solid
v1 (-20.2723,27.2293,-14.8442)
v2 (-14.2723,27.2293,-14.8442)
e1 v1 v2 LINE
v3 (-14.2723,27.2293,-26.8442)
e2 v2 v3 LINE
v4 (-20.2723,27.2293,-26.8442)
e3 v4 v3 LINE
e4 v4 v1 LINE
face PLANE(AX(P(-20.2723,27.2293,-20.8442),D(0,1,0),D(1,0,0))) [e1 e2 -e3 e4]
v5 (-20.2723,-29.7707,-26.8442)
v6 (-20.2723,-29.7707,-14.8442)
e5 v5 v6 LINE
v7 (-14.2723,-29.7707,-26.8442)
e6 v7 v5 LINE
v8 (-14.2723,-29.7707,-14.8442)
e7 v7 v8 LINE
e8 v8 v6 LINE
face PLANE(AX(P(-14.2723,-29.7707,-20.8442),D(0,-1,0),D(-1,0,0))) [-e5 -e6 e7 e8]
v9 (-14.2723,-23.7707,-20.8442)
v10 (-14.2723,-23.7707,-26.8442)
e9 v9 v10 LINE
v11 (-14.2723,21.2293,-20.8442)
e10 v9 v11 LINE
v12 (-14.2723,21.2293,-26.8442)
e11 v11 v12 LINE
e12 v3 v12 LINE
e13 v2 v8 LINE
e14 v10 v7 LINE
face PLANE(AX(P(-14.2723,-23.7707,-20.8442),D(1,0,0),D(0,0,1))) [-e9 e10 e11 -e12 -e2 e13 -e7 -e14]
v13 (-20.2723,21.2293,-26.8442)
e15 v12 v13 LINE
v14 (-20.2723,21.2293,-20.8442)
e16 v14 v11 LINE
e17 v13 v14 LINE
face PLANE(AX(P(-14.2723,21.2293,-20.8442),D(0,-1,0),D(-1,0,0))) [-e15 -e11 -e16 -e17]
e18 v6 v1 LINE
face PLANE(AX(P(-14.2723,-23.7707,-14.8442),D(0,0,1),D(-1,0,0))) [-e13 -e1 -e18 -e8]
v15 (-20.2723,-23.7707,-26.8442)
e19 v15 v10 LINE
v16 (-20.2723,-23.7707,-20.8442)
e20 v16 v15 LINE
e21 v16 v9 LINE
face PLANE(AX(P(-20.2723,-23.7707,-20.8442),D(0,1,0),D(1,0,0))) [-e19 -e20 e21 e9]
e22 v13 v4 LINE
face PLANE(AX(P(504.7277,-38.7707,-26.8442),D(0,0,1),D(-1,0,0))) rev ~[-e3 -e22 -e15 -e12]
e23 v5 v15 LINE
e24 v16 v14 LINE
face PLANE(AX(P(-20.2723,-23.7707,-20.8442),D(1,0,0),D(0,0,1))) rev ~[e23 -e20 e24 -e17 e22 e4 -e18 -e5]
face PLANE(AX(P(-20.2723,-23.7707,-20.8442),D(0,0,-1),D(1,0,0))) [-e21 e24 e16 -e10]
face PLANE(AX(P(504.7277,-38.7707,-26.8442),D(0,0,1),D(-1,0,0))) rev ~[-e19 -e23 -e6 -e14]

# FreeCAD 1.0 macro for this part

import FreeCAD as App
import Part
import Sketcher
from FreeCAD import Vector


def add_polygon(sketch, points):
    """Adds a closed chain of lines whose ends are joined by coincident constraints."""
    first, n = sketch.GeometryCount, len(points)
    for a, b in zip(points, points[1:] + points[:1]):
        sketch.addGeometry(Part.LineSegment(App.Vector(*a, 0), App.Vector(*b, 0)), False)
    for i in range(n):
        sketch.addConstraint(Sketcher.Constraint("Coincident", first + i, 2, first + (i + 1) % n, 1))

doc = App.newDocument("Part")
body = doc.addObject("PartDesign::Body", "Body")
body.AllowCompound = True

# Sketch on XY plane
sketch1 = body.newObject("Sketcher::SketchObject", "Sketch")
sketch1.AttachmentSupport = (doc.getObject("XY_Plane"), [""])
sketch1.MapMode = "FlatFace"
sketch1.AttachmentOffset = App.Placement(Vector(0, 0, -20.8442), App.Rotation())
add_polygon(sketch1, [(-14.2723, 27.2293), (-20.2723, 27.2293), (-20.2723, 21.2293), (-14.2723, 21.2293)])  # lines 0-3
add_polygon(sketch1, [(-20.2723, -23.7707), (-20.2723, -29.7707), (-14.2723, -29.7707), (-14.2723, -23.7707)])  # lines 4-7
sketch1.addConstraint([
    Sketcher.Constraint("Horizontal", 0),
    Sketcher.Constraint("Vertical", 1),
    Sketcher.Constraint("Horizontal", 2),
    Sketcher.Constraint("Vertical", 3),
    Sketcher.Constraint("Vertical", 4),
    Sketcher.Constraint("Horizontal", 5),
    Sketcher.Constraint("Vertical", 6),
    Sketcher.Constraint("Horizontal", 7),
    Sketcher.Constraint("Vertical", 1, 2, 4, 2),
    Sketcher.Constraint("Vertical", 3, 2, 5, 2),
    Sketcher.Constraint("Equal", 7, 1),
    Sketcher.Constraint("Equal", 3, 4),
    Sketcher.Constraint("DistanceX", 0, 2, 0, 1, 6.0),
    Sketcher.Constraint("DistanceY", 4, 2, 1, 2, 51.0),
    Sketcher.Constraint("DistanceX", 0, 2, -1, 1, 20.2723),
    Sketcher.Constraint("DistanceY", -1, 1, 0, 2, 27.2293),
])
pad1 = body.newObject("PartDesign::Pad", "Pad")
pad1.Profile = sketch1
pad1.Length = 12
pad1.Midplane = True

# Sketch on XZ plane
sketch2 = body.newObject("Sketcher::SketchObject", "Sketch001")
sketch2.AttachmentSupport = (doc.getObject("XZ_Plane"), [""])
sketch2.MapMode = "FlatFace"
sketch2.AttachmentOffset = App.Placement(Vector(0, 0, 23.7707), App.Rotation())
add_polygon(sketch2, [(-14.2723, -20.8442), (-20.2723, -20.8442), (-20.2723, -14.8442), (-14.2723, -14.8442)])  # lines 0-3
sketch2.addConstraint([
    Sketcher.Constraint("Horizontal", 0),
    Sketcher.Constraint("Vertical", 1),
    Sketcher.Constraint("Horizontal", 2),
    Sketcher.Constraint("Vertical", 3),
    Sketcher.Constraint("Equal", 2, 1),
    Sketcher.Constraint("DistanceX", 0, 2, 0, 1, 6.0),
    Sketcher.Constraint("DistanceX", 0, 2, -1, 1, 20.2723),
    Sketcher.Constraint("DistanceY", 0, 2, -1, 1, 20.8442),
])
pad2 = body.newObject("PartDesign::Pad", "Pad001")
pad2.Profile = sketch2
pad2.Length = 45
pad2.Reversed = True

doc.recompute()
